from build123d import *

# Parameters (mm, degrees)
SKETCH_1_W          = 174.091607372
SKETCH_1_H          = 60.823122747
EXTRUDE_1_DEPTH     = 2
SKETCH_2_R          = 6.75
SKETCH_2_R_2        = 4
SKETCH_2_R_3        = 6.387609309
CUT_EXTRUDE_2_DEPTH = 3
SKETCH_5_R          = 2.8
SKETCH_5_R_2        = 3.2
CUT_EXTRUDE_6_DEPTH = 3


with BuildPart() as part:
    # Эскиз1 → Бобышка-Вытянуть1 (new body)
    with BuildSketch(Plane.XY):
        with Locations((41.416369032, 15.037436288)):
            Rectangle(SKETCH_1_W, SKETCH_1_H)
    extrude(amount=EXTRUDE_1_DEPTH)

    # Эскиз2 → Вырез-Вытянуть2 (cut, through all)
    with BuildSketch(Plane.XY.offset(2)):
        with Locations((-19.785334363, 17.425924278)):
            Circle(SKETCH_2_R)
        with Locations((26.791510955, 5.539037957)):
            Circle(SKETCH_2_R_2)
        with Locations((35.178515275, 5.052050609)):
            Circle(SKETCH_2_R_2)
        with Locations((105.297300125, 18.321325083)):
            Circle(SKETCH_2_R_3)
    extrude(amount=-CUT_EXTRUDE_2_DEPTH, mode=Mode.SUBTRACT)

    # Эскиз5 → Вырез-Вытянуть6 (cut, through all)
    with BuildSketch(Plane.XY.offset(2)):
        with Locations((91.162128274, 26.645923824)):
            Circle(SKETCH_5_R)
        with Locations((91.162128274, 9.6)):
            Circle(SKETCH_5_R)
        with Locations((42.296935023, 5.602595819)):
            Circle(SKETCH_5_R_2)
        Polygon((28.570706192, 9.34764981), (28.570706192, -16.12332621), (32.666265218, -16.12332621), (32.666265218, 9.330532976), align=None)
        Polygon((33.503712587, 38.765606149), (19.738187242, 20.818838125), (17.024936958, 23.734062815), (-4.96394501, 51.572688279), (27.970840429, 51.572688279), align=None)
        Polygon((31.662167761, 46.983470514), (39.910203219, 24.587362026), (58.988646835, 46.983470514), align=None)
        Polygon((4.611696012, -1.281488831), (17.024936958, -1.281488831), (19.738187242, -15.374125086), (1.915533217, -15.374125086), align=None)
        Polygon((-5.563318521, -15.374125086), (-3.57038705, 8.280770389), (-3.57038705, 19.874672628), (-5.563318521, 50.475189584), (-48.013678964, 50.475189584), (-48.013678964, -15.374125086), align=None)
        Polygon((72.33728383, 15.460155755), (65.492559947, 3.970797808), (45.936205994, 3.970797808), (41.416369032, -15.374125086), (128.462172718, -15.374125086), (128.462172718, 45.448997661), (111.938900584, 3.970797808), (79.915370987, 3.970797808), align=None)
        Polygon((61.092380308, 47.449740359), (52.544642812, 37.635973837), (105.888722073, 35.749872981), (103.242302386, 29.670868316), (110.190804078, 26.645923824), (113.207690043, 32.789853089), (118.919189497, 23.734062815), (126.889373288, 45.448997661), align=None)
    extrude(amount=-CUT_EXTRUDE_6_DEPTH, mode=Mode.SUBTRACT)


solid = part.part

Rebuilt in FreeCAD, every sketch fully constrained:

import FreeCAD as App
import Part
import Sketcher
from FreeCAD import Vector
Q = App.Units.Quantity

doc = App.newDocument("Part")
body = doc.addObject("PartDesign::Body", "Body")

sketch1 = body.newObject("Sketcher::SketchObject", "Sketch")
sketch1.AttachmentSupport = (doc.getObject("XY_Plane"), [""])
sketch1.MapMode = "FlatFace"
sketch1.addGeometry(Part.LineSegment(Vector(-46, 45, 0), Vector(-46, -15, 0)), False)
sketch1.addGeometry(Part.LineSegment(Vector(-46, -15, 0), Vector(128, -15, 0)), False)
sketch1.addGeometry(Part.LineSegment(Vector(128, -15, 0), Vector(128, 45, 0)), False)
sketch1.addGeometry(Part.LineSegment(Vector(128, 45, 0), Vector(-46, 45, 0)), False)
sketch1.addConstraint(Sketcher.Constraint("Coincident", 0, 2, 1, 1))
sketch1.addConstraint(Sketcher.Constraint("Coincident", 1, 2, 2, 1))
sketch1.addConstraint(Sketcher.Constraint("Coincident", 2, 2, 3, 1))
sketch1.addConstraint(Sketcher.Constraint("Coincident", 3, 2, 0, 1))
sketch1.addConstraint(Sketcher.Constraint("Vertical", 0))
sketch1.addConstraint(Sketcher.Constraint("Horizontal", 1))
sketch1.addConstraint(Sketcher.Constraint("Vertical", 2))
sketch1.addConstraint(Sketcher.Constraint("Horizontal", 3))
sketch1.addConstraint(Sketcher.Constraint("DistanceX", 1, 1, 1, 2, Q("174.091607 mm")))
sketch1.addConstraint(Sketcher.Constraint("DistanceY", 0, 2, 0, 1, Q("60.823123 mm")))
sketch1.addConstraint(Sketcher.Constraint("DistanceX", 0, 2, -1, 1, Q("45.629435 mm")))
sketch1.addConstraint(Sketcher.Constraint("DistanceY", 0, 2, -1, 1, Q("15.374125 mm")))
pad1 = body.newObject("PartDesign::Pad", "Pad")
pad1.Profile = sketch1
pad1.Length = 2

sketch2 = body.newObject("Sketcher::SketchObject", "Sketch001")
sketch2.AttachmentSupport = (doc.getObject("XY_Plane"), [""])
sketch2.MapMode = "FlatFace"
sketch2.AttachmentOffset = App.Placement(Vector(0, 0, 2), App.Rotation())
sketch2.addGeometry(Part.Circle(Vector(-19.8, 17.4, 0), Vector(0, 0, 1), 6.8), False)
sketch2.addGeometry(Part.Circle(Vector(26.8, 5.5, 0), Vector(0, 0, 1), 4), False)
sketch2.addGeometry(Part.Circle(Vector(35.2, 5.1, 0), Vector(0, 0, 1), 4), False)
sketch2.addGeometry(Part.Circle(Vector(105.3, 18.3, 0), Vector(0, 0, 1), 6.4), False)
sketch2.addConstraint(Sketcher.Constraint("Equal", 1, 2))
sketch2.addConstraint(Sketcher.Constraint("Diameter", 1, Q("8 mm")))
sketch2.addConstraint(Sketcher.Constraint("Diameter", 0, Q("13.5 mm")))
sketch2.addConstraint(Sketcher.Constraint("Diameter", 3, Q("12.775219 mm")))
sketch2.addConstraint(Sketcher.Constraint("DistanceX", -1, 1, 3, 3, Q("105.2973 mm")))
sketch2.addConstraint(Sketcher.Constraint("DistanceY", 0, 3, 3, 3, Q("0.895401 mm")))
sketch2.addConstraint(Sketcher.Constraint("DistanceX", -1, 1, 1, 3, Q("26.791511 mm")))
sketch2.addConstraint(Sketcher.Constraint("DistanceY", -1, 1, 2, 3, Q("5.052051 mm")))
sketch2.addConstraint(Sketcher.Constraint("DistanceX", 0, 3, 2, 3, Q("54.96385 mm")))
sketch2.addConstraint(Sketcher.Constraint("DistanceX", 0, 3, -1, 1, Q("19.785334 mm")))
sketch2.addConstraint(Sketcher.Constraint("DistanceY", -1, 1, 0, 3, Q("17.425924 mm")))
sketch2.addConstraint(Sketcher.Constraint("DistanceY", -1, 1, 1, 3, Q("5.539038 mm")))
pocket1 = body.newObject("PartDesign::Pocket", "Pocket")
pocket1.Profile = sketch2
pocket1.Type = "ThroughAll"

sketch3 = body.newObject("Sketcher::SketchObject", "Sketch002")
sketch3.AttachmentSupport = (doc.getObject("XY_Plane"), [""])
sketch3.MapMode = "FlatFace"
sketch3.AttachmentOffset = App.Placement(Vector(0, 0, 2), App.Rotation())
sketch3.addGeometry(Part.Circle(Vector(91.2, 26.6, 0), Vector(0, 0, 1), 2.8), False)
sketch3.addGeometry(Part.Circle(Vector(91.2, 9.6, 0), Vector(0, 0, 1), 2.8), False)
sketch3.addGeometry(Part.Circle(Vector(42.3, 5.6, 0), Vector(0, 0, 1), 3.2), False)
sketch3.addGeometry(Part.LineSegment(Vector(28.6, 9.3, 0), Vector(28.6, -16.1, 0)), False)
sketch3.addGeometry(Part.LineSegment(Vector(28.6, -16.1, 0), Vector(32.7, -16.1, 0)), False)
sketch3.addGeometry(Part.LineSegment(Vector(32.7, -16.1, 0), Vector(32.7, 9.3, 0)), False)
sketch3.addGeometry(Part.LineSegment(Vector(32.7, 9.3, 0), Vector(28.6, 9.3, 0)), False)
sketch3.addGeometry(Part.LineSegment(Vector(19.7, 20.8, 0), Vector(33.5, 38.8, 0)), False)
sketch3.addGeometry(Part.LineSegment(Vector(33.5, 38.8, 0), Vector(28, 51.6, 0)), False)
sketch3.addGeometry(Part.LineSegment(Vector(28, 51.6, 0), Vector(-5, 51.6, 0)), False)
sketch3.addGeometry(Part.LineSegment(Vector(-5, 51.6, 0), Vector(17, 23.7, 0)), False)
sketch3.addGeometry(Part.LineSegment(Vector(17, 23.7, 0), Vector(19.7, 20.8, 0)), False)
sketch3.addGeometry(Part.LineSegment(Vector(31.7, 47, 0), Vector(39.9, 24.6, 0)), False)
sketch3.addGeometry(Part.LineSegment(Vector(39.9, 24.6, 0), Vector(59, 47, 0)), False)
sketch3.addGeometry(Part.LineSegment(Vector(59, 47, 0), Vector(31.7, 47, 0)), False)
sketch3.addGeometry(Part.LineSegment(Vector(17, -1.3, 0), Vector(4.6, -1.3, 0)), False)
sketch3.addGeometry(Part.LineSegment(Vector(4.6, -1.3, 0), Vector(1.9, -15.4, 0)), False)
sketch3.addGeometry(Part.LineSegment(Vector(1.9, -15.4, 0), Vector(19.7, -15.4, 0)), False)
sketch3.addGeometry(Part.LineSegment(Vector(19.7, -15.4, 0), Vector(17, -1.3, 0)), False)
sketch3.addGeometry(Part.LineSegment(Vector(-5.6, -15.4, 0), Vector(-3.6, 8.3, 0)), False)
sketch3.addGeometry(Part.LineSegment(Vector(-3.6, 8.3, 0), Vector(-3.6, 19.9, 0)), False)
sketch3.addGeometry(Part.LineSegment(Vector(-3.6, 19.9, 0), Vector(-5.6, 50.5, 0)), False)
sketch3.addGeometry(Part.LineSegment(Vector(-5.6, 50.5, 0), Vector(-48, 50.5, 0)), False)
sketch3.addGeometry(Part.LineSegment(Vector(-48, 50.5, 0), Vector(-48, -15.4, 0)), False)
sketch3.addGeometry(Part.LineSegment(Vector(-48, -15.4, 0), Vector(-5.6, -15.4, 0)), False)
sketch3.addGeometry(Part.LineSegment(Vector(72.3, 15.5, 0), Vector(65.5, 4, 0)), False)
sketch3.addGeometry(Part.LineSegment(Vector(65.5, 4, 0), Vector(45.9, 4, 0)), False)
sketch3.addGeometry(Part.LineSegment(Vector(45.9, 4, 0), Vector(41.4, -15.4, 0)), False)
sketch3.addGeometry(Part.LineSegment(Vector(41.4, -15.4, 0), Vector(128.5, -15.4, 0)), False)
sketch3.addGeometry(Part.LineSegment(Vector(128.5, -15.4, 0), Vector(128.5, 45.4, 0)), False)
sketch3.addGeometry(Part.LineSegment(Vector(128.5, 45.4, 0), Vector(111.9, 4, 0)), False)
sketch3.addGeometry(Part.LineSegment(Vector(111.9, 4, 0), Vector(79.9, 4, 0)), False)
sketch3.addGeometry(Part.LineSegment(Vector(79.9, 4, 0), Vector(72.3, 15.5, 0)), False)
sketch3.addGeometry(Part.LineSegment(Vector(61.1, 47.4, 0), Vector(52.5, 37.6, 0)), False)
sketch3.addGeometry(Part.LineSegment(Vector(52.5, 37.6, 0), Vector(105.9, 35.7, 0)), False)
sketch3.addGeometry(Part.LineSegment(Vector(105.9, 35.7, 0), Vector(103.2, 29.7, 0)), False)
sketch3.addGeometry(Part.LineSegment(Vector(103.2, 29.7, 0), Vector(110.2, 26.6, 0)), False)
sketch3.addGeometry(Part.LineSegment(Vector(110.2, 26.6, 0), Vector(113.2, 32.8, 0)), False)
sketch3.addGeometry(Part.LineSegment(Vector(113.2, 32.8, 0), Vector(118.9, 23.7, 0)), False)
sketch3.addGeometry(Part.LineSegment(Vector(118.9, 23.7, 0), Vector(126.9, 45.4, 0)), False)
sketch3.addGeometry(Part.LineSegment(Vector(126.9, 45.4, 0), Vector(61.1, 47.4, 0)), False)
sketch3.addConstraint(Sketcher.Constraint("Coincident", 3, 2, 4, 1))
sketch3.addConstraint(Sketcher.Constraint("Coincident", 4, 2, 5, 1))
sketch3.addConstraint(Sketcher.Constraint("Coincident", 5, 2, 6, 1))
sketch3.addConstraint(Sketcher.Constraint("Coincident", 6, 2, 3, 1))
sketch3.addConstraint(Sketcher.Constraint("Coincident", 7, 2, 8, 1))
sketch3.addConstraint(Sketcher.Constraint("Coincident", 8, 2, 9, 1))
sketch3.addConstraint(Sketcher.Constraint("Coincident", 9, 2, 10, 1))
sketch3.addConstraint(Sketcher.Constraint("Coincident", 10, 2, 11, 1))
sketch3.addConstraint(Sketcher.Constraint("Coincident", 11, 2, 7, 1))
sketch3.addConstraint(Sketcher.Constraint("Coincident", 12, 2, 13, 1))
sketch3.addConstraint(Sketcher.Constraint("Coincident", 13, 2, 14, 1))
sketch3.addConstraint(Sketcher.Constraint("Coincident", 14, 2, 12, 1))
sketch3.addConstraint(Sketcher.Constraint("Coincident", 15, 2, 16, 1))
sketch3.addConstraint(Sketcher.Constraint("Coincident", 16, 2, 17, 1))
sketch3.addConstraint(Sketcher.Constraint("Coincident", 17, 2, 18, 1))
sketch3.addConstraint(Sketcher.Constraint("Coincident", 18, 2, 15, 1))
sketch3.addConstraint(Sketcher.Constraint("Coincident", 19, 2, 20, 1))
sketch3.addConstraint(Sketcher.Constraint("Coincident", 20, 2, 21, 1))
sketch3.addConstraint(Sketcher.Constraint("Coincident", 21, 2, 22, 1))
sketch3.addConstraint(Sketcher.Constraint("Coincident", 22, 2, 23, 1))
sketch3.addConstraint(Sketcher.Constraint("Coincident", 23, 2, 24, 1))
sketch3.addConstraint(Sketcher.Constraint("Coincident", 24, 2, 19, 1))
sketch3.addConstraint(Sketcher.Constraint("Coincident", 25, 2, 26, 1))
sketch3.addConstraint(Sketcher.Constraint("Coincident", 26, 2, 27, 1))
sketch3.addConstraint(Sketcher.Constraint("Coincident", 27, 2, 28, 1))
sketch3.addConstraint(Sketcher.Constraint("Coincident", 28, 2, 29, 1))
sketch3.addConstraint(Sketcher.Constraint("Coincident", 29, 2, 30, 1))
sketch3.addConstraint(Sketcher.Constraint("Coincident", 30, 2, 31, 1))
sketch3.addConstraint(Sketcher.Constraint("Coincident", 31, 2, 32, 1))
sketch3.addConstraint(Sketcher.Constraint("Coincident", 32, 2, 25, 1))
sketch3.addConstraint(Sketcher.Constraint("Coincident", 33, 2, 34, 1))
sketch3.addConstraint(Sketcher.Constraint("Coincident", 34, 2, 35, 1))
sketch3.addConstraint(Sketcher.Constraint("Coincident", 35, 2, 36, 1))
sketch3.addConstraint(Sketcher.Constraint("Coincident", 36, 2, 37, 1))
sketch3.addConstraint(Sketcher.Constraint("Coincident", 37, 2, 38, 1))
sketch3.addConstraint(Sketcher.Constraint("Coincident", 38, 2, 39, 1))
sketch3.addConstraint(Sketcher.Constraint("Coincident", 39, 2, 40, 1))
sketch3.addConstraint(Sketcher.Constraint("Coincident", 40, 2, 33, 1))
sketch3.addConstraint(Sketcher.Constraint("Vertical", 3))
sketch3.addConstraint(Sketcher.Constraint("Horizontal", 4))
sketch3.addConstraint(Sketcher.Constraint("Vertical", 5))
sketch3.addConstraint(Sketcher.Constraint("Horizontal", 9))
sketch3.addConstraint(Sketcher.Constraint("Horizontal", 14))
sketch3.addConstraint(Sketcher.Constraint("Horizontal", 15))
sketch3.addConstraint(Sketcher.Constraint("Horizontal", 17))
sketch3.addConstraint(Sketcher.Constraint("Vertical", 20))
sketch3.addConstraint(Sketcher.Constraint("Horizontal", 22))
sketch3.addConstraint(Sketcher.Constraint("Vertical", 23))
sketch3.addConstraint(Sketcher.Constraint("Horizontal", 24))
sketch3.addConstraint(Sketcher.Constraint("Horizontal", 26))
sketch3.addConstraint(Sketcher.Constraint("Horizontal", 28))
sketch3.addConstraint(Sketcher.Constraint("Vertical", 29))
sketch3.addConstraint(Sketcher.Constraint("Horizontal", 31))
sketch3.addConstraint(Sketcher.Constraint("Equal", 0, 1))
sketch3.addConstraint(Sketcher.Constraint("Perpendicular", 35, 36))
sketch3.addConstraint(Sketcher.Constraint("Horizontal", 17, 2, 23, 2))
sketch3.addConstraint(Sketcher.Constraint("Horizontal", 24, 2, 27, 2))
sketch3.addConstraint(Sketcher.Constraint("Horizontal", 26, 2, 30, 2))
sketch3.addConstraint(Sketcher.Constraint("Horizontal", 0, 3, 36, 2))
sketch3.addConstraint(Sketcher.Constraint("Horizontal", 10, 2, 38, 2))
sketch3.addConstraint(Sketcher.Constraint("Horizontal", 29, 2, 39, 2))
sketch3.addConstraint(Sketcher.Constraint("Vertical", 0, 3, 1, 3))
sketch3.addConstraint(Sketcher.Constraint("Vertical", 11, 2, 17, 2))
sketch3.addConstraint(Sketcher.Constraint("Vertical", 10, 2, 18, 2))
sketch3.addConstraint(Sketcher.Constraint("Vertical", 21, 2, 24, 2))
sketch3.addConstraint(Sketcher.Constraint("Diameter", 0, Q("5.6 mm")))
sketch3.addConstraint(Sketcher.Constraint("Diameter", 2, Q("6.4 mm")))
sketch3.addConstraint(Sketcher.Constraint("DistanceY", -1, 1, 1, 3, Q("9.6 mm")))
sketch3.addConstraint(Sketcher.Constraint("DistanceX", 10, 2, 2, 3, Q("25.271998 mm")))
sketch3.addConstraint(Sketcher.Constraint("Distance", 19, Q("23.7387 mm")))
sketch3.addConstraint(Sketcher.Constraint("DistanceX", 4, 1, 4, 2, Q("4.095559 mm")))
sketch3.addConstraint(Sketcher.Constraint("DistanceX", 14, 2, 14, 1, Q("27.326479 mm")))
sketch3.addConstraint(Sketcher.Constraint("DistanceX", 15, 2, 15, 1, Q("12.413241 mm")))
sketch3.addConstraint(Sketcher.Constraint("DistanceX", 22, 2, 22, 1, Q("42.45036 mm")))
sketch3.addConstraint(Sketcher.Constraint("DistanceX", 31, 2, 31, 1, Q("32.02353 mm")))
sketch3.addConstraint(Sketcher.Constraint("DistanceY", 5, 1, 5, 2, Q("25.453859 mm")))
sketch3.addConstraint(Sketcher.Constraint("DistanceX", -1, 1, 30, 2, Q("111.938901 mm")))
sketch3.addConstraint(Sketcher.Constraint("DistanceY", 3, 2, 16, 2, Q("0.749201 mm")))
sketch3.addConstraint(Sketcher.Constraint("DistanceY", 21, 2, 9, 2, Q("1.097499 mm")))
sketch3.addConstraint(Sketcher.Constraint("DistanceY", 25, 2, 2, 3, Q("1.631798 mm")))
sketch3.addConstraint(Sketcher.Constraint("DistanceX", 6, 2, 26, 2, Q("17.3655 mm")))
sketch3.addConstraint(Sketcher.Constraint("DistanceY", 25, 2, 29, 2, Q("41.4782 mm")))
sketch3.addConstraint(Sketcher.Constraint("DistanceX", 35, 2, 30, 2, Q("8.696598 mm")))
sketch3.addConstraint(Sketcher.Constraint("DistanceX", 35, 2, 36, 2, Q("6.948502 mm")))
sketch3.addConstraint(Sketcher.Constraint("DistanceX", 37, 2, 38, 2, Q("5.711499 mm")))
sketch3.addConstraint(Sketcher.Constraint("DistanceX", 39, 2, 29, 2, Q("1.572799 mm")))
sketch3.addConstraint(Sketcher.Constraint("Distance", 7, Q("22.61805 mm")))
sketch3.addConstraint(Sketcher.Constraint("Distance", 8, Q("13.95113 mm")))
sketch3.addConstraint(Sketcher.Constraint("Distance", 16, Q("14.34823 mm")))
sketch3.addConstraint(Sketcher.Constraint("Distance", 18, Q("14.35145 mm")))
sketch3.addConstraint(Sketcher.Constraint("Distance", 25, Q("13.37369 mm")))
sketch3.addConstraint(Sketcher.Constraint("Distance", 33, Q("13.01437 mm")))
sketch3.addConstraint(Sketcher.Constraint("Distance", 35, Q("6.630071 mm")))
sketch3.addConstraint(Sketcher.Constraint("Distance", 36, Q("7.578388 mm")))
sketch3.addConstraint(Sketcher.Constraint("DistanceX", 9, 2, 9, 1, Q("32.934785 mm")))
sketch3.addConstraint(Sketcher.Constraint("DistanceX", 17, 1, 17, 2, Q("17.822654 mm")))
sketch3.addConstraint(Sketcher.Constraint("DistanceX", 26, 2, 26, 1, Q("19.556354 mm")))
sketch3.addConstraint(Sketcher.Constraint("DistanceX", 28, 1, 28, 2, Q("87.045804 mm")))
sketch3.addConstraint(Sketcher.Constraint("DistanceY", 3, 2, 3, 1, Q("25.470976 mm")))
sketch3.addConstraint(Sketcher.Constraint("DistanceY", 20, 1, 20, 2, Q("11.593902 mm")))
sketch3.addConstraint(Sketcher.Constraint("DistanceY", 23, 2, 23, 1, Q("65.849315 mm")))
sketch3.addConstraint(Sketcher.Constraint("DistanceY", 29, 1, 29, 2, Q("60.823123 mm")))
sketch3.addConstraint(Sketcher.Constraint("DistanceX", -1, 1, 0, 3, Q("91.162128 mm")))
sketch3.addConstraint(Sketcher.Constraint("DistanceY", -1, 1, 6, 2, Q("9.34765 mm")))
sketch3.addConstraint(Sketcher.Constraint("DistanceX", -1, 1, 8, 2, Q("27.97084 mm")))
sketch3.addConstraint(Sketcher.Constraint("DistanceY", -1, 1, 11, 2, Q("20.818838 mm")))
sketch3.addConstraint(Sketcher.Constraint("DistanceY", -1, 1, 13, 2, Q("46.983471 mm")))
sketch3.addConstraint(Sketcher.Constraint("DistanceY", -1, 1, 19, 2, Q("8.28077 mm")))
sketch3.addConstraint(Sketcher.Constraint("DistanceX", 21, 2, -1, 1, Q("5.563319 mm")))
sketch3.addConstraint(Sketcher.Constraint("DistanceX", -1, 1, 25, 2, Q("65.49256 mm")))
sketch3.addConstraint(Sketcher.Constraint("DistanceX", -1, 1, 27, 2, Q("41.416369 mm")))
sketch3.addConstraint(Sketcher.Constraint("DistanceY", -1, 1, 35, 2, Q("29.670868 mm")))
sketch3.addConstraint(Sketcher.Constraint("DistanceX", -1, 1, 37, 2, Q("113.20769 mm")))
sketch3.addConstraint(Sketcher.Constraint("DistanceX", -1, 1, 40, 2, Q("61.09238 mm")))
sketch3.addConstraint(Sketcher.Constraint("DistanceY", -1, 1, 40, 2, Q("47.44974 mm")))
sketch3.addConstraint(Sketcher.Constraint("DistanceX", 3, 2, 2, 3, Q("13.726229 mm")))
sketch3.addConstraint(Sketcher.Constraint("DistanceY", 5, 2, 10, 2, Q("14.40353 mm")))
sketch3.addConstraint(Sketcher.Constraint("DistanceX", 7, 2, 12, 2, Q("6.406491 mm")))
sketch3.addConstraint(Sketcher.Constraint("DistanceY", 5, 2, 12, 2, Q("15.256829 mm")))
sketch3.addConstraint(Sketcher.Constraint("DistanceX", 13, 2, 0, 3, Q("32.173481 mm")))
sketch3.addConstraint(Sketcher.Constraint("DistanceY", 32, 2, 0, 3, Q("11.185768 mm")))
sketch3.addConstraint(Sketcher.Constraint("DistanceX", 12, 2, 33, 2, Q("12.63444 mm")))
sketch3.addConstraint(Sketcher.Constraint("DistanceY", 36, 2, 37, 2, Q("6.143929 mm")))
pocket2 = body.newObject("PartDesign::Pocket", "Pocket001")
pocket2.Profile = sketch3
pocket2.Type = "ThroughAll"

doc.recompute()
